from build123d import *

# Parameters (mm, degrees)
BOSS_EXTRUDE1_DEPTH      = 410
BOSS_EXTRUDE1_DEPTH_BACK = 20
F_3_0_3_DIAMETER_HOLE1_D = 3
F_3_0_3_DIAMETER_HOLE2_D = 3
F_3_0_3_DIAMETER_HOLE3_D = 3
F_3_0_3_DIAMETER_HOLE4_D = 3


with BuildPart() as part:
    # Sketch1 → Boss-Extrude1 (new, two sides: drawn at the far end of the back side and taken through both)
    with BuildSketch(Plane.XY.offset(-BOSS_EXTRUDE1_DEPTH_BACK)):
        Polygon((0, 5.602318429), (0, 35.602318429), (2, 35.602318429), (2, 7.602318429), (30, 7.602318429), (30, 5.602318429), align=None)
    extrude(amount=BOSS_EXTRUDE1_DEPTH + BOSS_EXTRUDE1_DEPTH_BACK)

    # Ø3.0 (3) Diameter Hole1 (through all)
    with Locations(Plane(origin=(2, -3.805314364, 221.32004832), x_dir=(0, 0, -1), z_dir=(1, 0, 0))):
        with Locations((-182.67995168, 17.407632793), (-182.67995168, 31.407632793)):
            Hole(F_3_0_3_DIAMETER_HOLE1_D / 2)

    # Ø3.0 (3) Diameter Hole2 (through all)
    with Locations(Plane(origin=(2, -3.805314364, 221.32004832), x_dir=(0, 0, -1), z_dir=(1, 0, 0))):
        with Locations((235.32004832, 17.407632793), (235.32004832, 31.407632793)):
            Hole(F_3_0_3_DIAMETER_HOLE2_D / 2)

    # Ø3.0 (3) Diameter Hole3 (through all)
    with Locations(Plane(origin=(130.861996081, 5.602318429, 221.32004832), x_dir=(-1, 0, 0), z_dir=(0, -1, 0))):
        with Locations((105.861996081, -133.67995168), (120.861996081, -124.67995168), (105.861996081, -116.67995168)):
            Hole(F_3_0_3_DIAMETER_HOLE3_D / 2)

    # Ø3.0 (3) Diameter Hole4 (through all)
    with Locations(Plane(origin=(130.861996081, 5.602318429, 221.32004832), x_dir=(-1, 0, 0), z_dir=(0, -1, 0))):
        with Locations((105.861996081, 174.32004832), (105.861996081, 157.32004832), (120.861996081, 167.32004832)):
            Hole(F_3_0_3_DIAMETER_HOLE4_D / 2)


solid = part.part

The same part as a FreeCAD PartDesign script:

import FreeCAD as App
import Part
import Sketcher

V = App.Vector

doc = App.newDocument("Part")
body = doc.addObject("PartDesign::Body", "Body")

# Sketch on XY plane
sketch1 = body.newObject("Sketcher::SketchObject", "Sketch")
sketch1.AttachmentSupport = (doc.getObject("XY_Plane"), [""])
sketch1.MapMode = "FlatFace"
sketch1.addGeometry(Part.LineSegment(V(0, 35.602318, 0), V(0, 5.602318, 0)), False)
sketch1.addGeometry(Part.LineSegment(V(0, 5.602318, 0), V(30, 5.602318, 0)), False)
sketch1.addGeometry(Part.LineSegment(V(30, 5.602318, 0), V(30, 7.602318, 0)), False)
sketch1.addGeometry(Part.LineSegment(V(30, 7.602318, 0), V(2, 7.602318, 0)), False)
sketch1.addGeometry(Part.LineSegment(V(2, 7.602318, 0), V(2, 35.602318, 0)), False)
sketch1.addGeometry(Part.LineSegment(V(2, 35.602318, 0), V(0, 35.602318, 0)), False)
sketch1.addConstraint(Sketcher.Constraint("Coincident", 0, 2, 1, 1))
sketch1.addConstraint(Sketcher.Constraint("Coincident", 1, 2, 2, 1))
sketch1.addConstraint(Sketcher.Constraint("Coincident", 2, 2, 3, 1))
sketch1.addConstraint(Sketcher.Constraint("Coincident", 3, 2, 4, 1))
sketch1.addConstraint(Sketcher.Constraint("Coincident", 4, 2, 5, 1))
sketch1.addConstraint(Sketcher.Constraint("Coincident", 5, 2, 0, 1))
sketch1.addConstraint(Sketcher.Constraint("Vertical", 0))
sketch1.addConstraint(Sketcher.Constraint("Horizontal", 1))
sketch1.addConstraint(Sketcher.Constraint("Vertical", 2))
sketch1.addConstraint(Sketcher.Constraint("Horizontal", 3))
sketch1.addConstraint(Sketcher.Constraint("Vertical", 4))
sketch1.addConstraint(Sketcher.Constraint("Horizontal", 5))
sketch1.addConstraint(Sketcher.Constraint("PointOnObject", 0, 2, -2))
sketch1.addConstraint(Sketcher.Constraint("Equal", 1, 0))
sketch1.addConstraint(Sketcher.Constraint("Equal", 5, 2))
sketch1.addConstraint(Sketcher.Constraint("DistanceX", 1, 1, 1, 2, 30.0))
sketch1.addConstraint(Sketcher.Constraint("DistanceX", 3, 2, 3, 1, 28.0))
sketch1.addConstraint(Sketcher.Constraint("DistanceY", -1, 1, 0, 2, 5.602318))
pad1 = body.newObject("PartDesign::Pad", "Pad")
pad1.Profile = sketch1
pad1.Type = "TwoLengths"
pad1.Length = 410
pad1.Length2 = 20

# Sketch on YZ plane
sketch2 = body.newObject("Sketcher::SketchObject", "Sketch001")
sketch2.AttachmentSupport = (doc.getObject("YZ_Plane"), [""])
sketch2.MapMode = "FlatFace"
sketch2.AttachmentOffset = App.Placement(V(0, 0, 2), App.Rotation())
sketch2.addGeometry(Part.Circle(V(13.602318, 404, 0), V(0, 0, 1), 1.5), False)
sketch2.addGeometry(Part.Circle(V(27.602318, 404, 0), V(0, 0, 1), 1.5), False)
sketch2.addConstraint(Sketcher.Constraint("Equal", 0, 1))
sketch2.addConstraint(Sketcher.Constraint("Horizontal", 0, 3, 1, 3))
sketch2.addConstraint(Sketcher.Constraint("Diameter", 0, 3.0))
sketch2.addConstraint(Sketcher.Constraint("DistanceY", -1, 1, 0, 3, 404.0))
sketch2.addConstraint(Sketcher.Constraint("DistanceX", 0, 3, 1, 3, 14.0))
sketch2.addConstraint(Sketcher.Constraint("DistanceX", -1, 1, 0, 3, 13.602318))
doc.recompute()
hole = body.newObject("PartDesign::Hole", "Hole")
hole.Profile = sketch2
hole.ThreadType = "None"
hole.Diameter = 3
hole.DepthType = "ThroughAll"

# Sketch on YZ plane
sketch3 = body.newObject("Sketcher::SketchObject", "Sketch002")
sketch3.AttachmentSupport = (doc.getObject("YZ_Plane"), [""])
sketch3.MapMode = "FlatFace"
sketch3.AttachmentOffset = App.Placement(V(0, 0, 2), App.Rotation())
sketch3.addGeometry(Part.Circle(V(13.602318, -14, 0), V(0, 0, 1), 1.5), False)
sketch3.addGeometry(Part.Circle(V(27.602318, -14, 0), V(0, 0, 1), 1.5), False)
sketch3.addConstraint(Sketcher.Constraint("Equal", 0, 1))
sketch3.addConstraint(Sketcher.Constraint("Horizontal", 0, 3, 1, 3))
sketch3.addConstraint(Sketcher.Constraint("Diameter", 0, 3.0))
sketch3.addConstraint(Sketcher.Constraint("DistanceY", 0, 3, -1, 1, 14.0))
sketch3.addConstraint(Sketcher.Constraint("DistanceX", 0, 3, 1, 3, 14.0))
sketch3.addConstraint(Sketcher.Constraint("DistanceX", -1, 1, 0, 3, 13.602318))
doc.recompute()
hole2 = body.newObject("PartDesign::Hole", "Hole001")
hole2.Profile = sketch3
hole2.ThreadType = "None"
hole2.Diameter = 3
hole2.DepthType = "ThroughAll"

# Sketch on XZ plane
sketch4 = body.newObject("Sketcher::SketchObject", "Sketch003")
sketch4.AttachmentSupport = (doc.getObject("XZ_Plane"), [""])
sketch4.MapMode = "FlatFace"
sketch4.AttachmentOffset = App.Placement(V(0, 0, -5.602318), App.Rotation())
sketch4.addGeometry(Part.Circle(V(25, 355, 0), V(0, 0, 1), 1.5), False)
sketch4.addGeometry(Part.Circle(V(10, 346, 0), V(0, 0, 1), 1.5), False)
sketch4.addGeometry(Part.Circle(V(25, 338, 0), V(0, 0, 1), 1.5), False)
sketch4.addConstraint(Sketcher.Constraint("Equal", 0, 1))
sketch4.addConstraint(Sketcher.Constraint("Equal", 1, 2))
sketch4.addConstraint(Sketcher.Constraint("Vertical", 0, 3, 2, 3))
sketch4.addConstraint(Sketcher.Constraint("Diameter", 0, 3.0))
sketch4.addConstraint(Sketcher.Constraint("DistanceX", -1, 1, 0, 3, 25.0))
sketch4.addConstraint(Sketcher.Constraint("DistanceY", -1, 1, 0, 3, 355.0))
sketch4.addConstraint(Sketcher.Constraint("DistanceX", -1, 1, 1, 3, 10.0))
sketch4.addConstraint(Sketcher.Constraint("DistanceY", -1, 1, 1, 3, 346.0))
sketch4.addConstraint(Sketcher.Constraint("DistanceY", -1, 1, 2, 3, 338.0))
doc.recompute()
hole3 = body.newObject("PartDesign::Hole", "Hole002")
hole3.Profile = sketch4
hole3.ThreadType = "None"
hole3.Diameter = 3
hole3.DepthType = "ThroughAll"

# Sketch on XZ plane
sketch5 = body.newObject("Sketcher::SketchObject", "Sketch004")
sketch5.AttachmentSupport = (doc.getObject("XZ_Plane"), [""])
sketch5.MapMode = "FlatFace"
sketch5.AttachmentOffset = App.Placement(V(0, 0, -5.602318), App.Rotation())
sketch5.addGeometry(Part.Circle(V(25, 47, 0), V(0, 0, 1), 1.5), False)
sketch5.addGeometry(Part.Circle(V(25, 64, 0), V(0, 0, 1), 1.5), False)
sketch5.addGeometry(Part.Circle(V(10, 54, 0), V(0, 0, 1), 1.5), False)
sketch5.addConstraint(Sketcher.Constraint("Equal", 0, 1))
sketch5.addConstraint(Sketcher.Constraint("Equal", 1, 2))
sketch5.addConstraint(Sketcher.Constraint("Vertical", 0, 3, 1, 3))
sketch5.addConstraint(Sketcher.Constraint("Diameter", 0, 3.0))
sketch5.addConstraint(Sketcher.Constraint("DistanceX", -1, 1, 0, 3, 25.0))
sketch5.addConstraint(Sketcher.Constraint("DistanceY", -1, 1, 0, 3, 47.0))
sketch5.addConstraint(Sketcher.Constraint("DistanceY", -1, 1, 1, 3, 64.0))
sketch5.addConstraint(Sketcher.Constraint("DistanceX", -1, 1, 2, 3, 10.0))
sketch5.addConstraint(Sketcher.Constraint("DistanceY", -1, 1, 2, 3, 54.0))
doc.recompute()
hole4 = body.newObject("PartDesign::Hole", "Hole003")
hole4.Profile = sketch5
hole4.ThreadType = "None"
hole4.Diameter = 3
hole4.DepthType = "ThroughAll"

doc.recompute()
